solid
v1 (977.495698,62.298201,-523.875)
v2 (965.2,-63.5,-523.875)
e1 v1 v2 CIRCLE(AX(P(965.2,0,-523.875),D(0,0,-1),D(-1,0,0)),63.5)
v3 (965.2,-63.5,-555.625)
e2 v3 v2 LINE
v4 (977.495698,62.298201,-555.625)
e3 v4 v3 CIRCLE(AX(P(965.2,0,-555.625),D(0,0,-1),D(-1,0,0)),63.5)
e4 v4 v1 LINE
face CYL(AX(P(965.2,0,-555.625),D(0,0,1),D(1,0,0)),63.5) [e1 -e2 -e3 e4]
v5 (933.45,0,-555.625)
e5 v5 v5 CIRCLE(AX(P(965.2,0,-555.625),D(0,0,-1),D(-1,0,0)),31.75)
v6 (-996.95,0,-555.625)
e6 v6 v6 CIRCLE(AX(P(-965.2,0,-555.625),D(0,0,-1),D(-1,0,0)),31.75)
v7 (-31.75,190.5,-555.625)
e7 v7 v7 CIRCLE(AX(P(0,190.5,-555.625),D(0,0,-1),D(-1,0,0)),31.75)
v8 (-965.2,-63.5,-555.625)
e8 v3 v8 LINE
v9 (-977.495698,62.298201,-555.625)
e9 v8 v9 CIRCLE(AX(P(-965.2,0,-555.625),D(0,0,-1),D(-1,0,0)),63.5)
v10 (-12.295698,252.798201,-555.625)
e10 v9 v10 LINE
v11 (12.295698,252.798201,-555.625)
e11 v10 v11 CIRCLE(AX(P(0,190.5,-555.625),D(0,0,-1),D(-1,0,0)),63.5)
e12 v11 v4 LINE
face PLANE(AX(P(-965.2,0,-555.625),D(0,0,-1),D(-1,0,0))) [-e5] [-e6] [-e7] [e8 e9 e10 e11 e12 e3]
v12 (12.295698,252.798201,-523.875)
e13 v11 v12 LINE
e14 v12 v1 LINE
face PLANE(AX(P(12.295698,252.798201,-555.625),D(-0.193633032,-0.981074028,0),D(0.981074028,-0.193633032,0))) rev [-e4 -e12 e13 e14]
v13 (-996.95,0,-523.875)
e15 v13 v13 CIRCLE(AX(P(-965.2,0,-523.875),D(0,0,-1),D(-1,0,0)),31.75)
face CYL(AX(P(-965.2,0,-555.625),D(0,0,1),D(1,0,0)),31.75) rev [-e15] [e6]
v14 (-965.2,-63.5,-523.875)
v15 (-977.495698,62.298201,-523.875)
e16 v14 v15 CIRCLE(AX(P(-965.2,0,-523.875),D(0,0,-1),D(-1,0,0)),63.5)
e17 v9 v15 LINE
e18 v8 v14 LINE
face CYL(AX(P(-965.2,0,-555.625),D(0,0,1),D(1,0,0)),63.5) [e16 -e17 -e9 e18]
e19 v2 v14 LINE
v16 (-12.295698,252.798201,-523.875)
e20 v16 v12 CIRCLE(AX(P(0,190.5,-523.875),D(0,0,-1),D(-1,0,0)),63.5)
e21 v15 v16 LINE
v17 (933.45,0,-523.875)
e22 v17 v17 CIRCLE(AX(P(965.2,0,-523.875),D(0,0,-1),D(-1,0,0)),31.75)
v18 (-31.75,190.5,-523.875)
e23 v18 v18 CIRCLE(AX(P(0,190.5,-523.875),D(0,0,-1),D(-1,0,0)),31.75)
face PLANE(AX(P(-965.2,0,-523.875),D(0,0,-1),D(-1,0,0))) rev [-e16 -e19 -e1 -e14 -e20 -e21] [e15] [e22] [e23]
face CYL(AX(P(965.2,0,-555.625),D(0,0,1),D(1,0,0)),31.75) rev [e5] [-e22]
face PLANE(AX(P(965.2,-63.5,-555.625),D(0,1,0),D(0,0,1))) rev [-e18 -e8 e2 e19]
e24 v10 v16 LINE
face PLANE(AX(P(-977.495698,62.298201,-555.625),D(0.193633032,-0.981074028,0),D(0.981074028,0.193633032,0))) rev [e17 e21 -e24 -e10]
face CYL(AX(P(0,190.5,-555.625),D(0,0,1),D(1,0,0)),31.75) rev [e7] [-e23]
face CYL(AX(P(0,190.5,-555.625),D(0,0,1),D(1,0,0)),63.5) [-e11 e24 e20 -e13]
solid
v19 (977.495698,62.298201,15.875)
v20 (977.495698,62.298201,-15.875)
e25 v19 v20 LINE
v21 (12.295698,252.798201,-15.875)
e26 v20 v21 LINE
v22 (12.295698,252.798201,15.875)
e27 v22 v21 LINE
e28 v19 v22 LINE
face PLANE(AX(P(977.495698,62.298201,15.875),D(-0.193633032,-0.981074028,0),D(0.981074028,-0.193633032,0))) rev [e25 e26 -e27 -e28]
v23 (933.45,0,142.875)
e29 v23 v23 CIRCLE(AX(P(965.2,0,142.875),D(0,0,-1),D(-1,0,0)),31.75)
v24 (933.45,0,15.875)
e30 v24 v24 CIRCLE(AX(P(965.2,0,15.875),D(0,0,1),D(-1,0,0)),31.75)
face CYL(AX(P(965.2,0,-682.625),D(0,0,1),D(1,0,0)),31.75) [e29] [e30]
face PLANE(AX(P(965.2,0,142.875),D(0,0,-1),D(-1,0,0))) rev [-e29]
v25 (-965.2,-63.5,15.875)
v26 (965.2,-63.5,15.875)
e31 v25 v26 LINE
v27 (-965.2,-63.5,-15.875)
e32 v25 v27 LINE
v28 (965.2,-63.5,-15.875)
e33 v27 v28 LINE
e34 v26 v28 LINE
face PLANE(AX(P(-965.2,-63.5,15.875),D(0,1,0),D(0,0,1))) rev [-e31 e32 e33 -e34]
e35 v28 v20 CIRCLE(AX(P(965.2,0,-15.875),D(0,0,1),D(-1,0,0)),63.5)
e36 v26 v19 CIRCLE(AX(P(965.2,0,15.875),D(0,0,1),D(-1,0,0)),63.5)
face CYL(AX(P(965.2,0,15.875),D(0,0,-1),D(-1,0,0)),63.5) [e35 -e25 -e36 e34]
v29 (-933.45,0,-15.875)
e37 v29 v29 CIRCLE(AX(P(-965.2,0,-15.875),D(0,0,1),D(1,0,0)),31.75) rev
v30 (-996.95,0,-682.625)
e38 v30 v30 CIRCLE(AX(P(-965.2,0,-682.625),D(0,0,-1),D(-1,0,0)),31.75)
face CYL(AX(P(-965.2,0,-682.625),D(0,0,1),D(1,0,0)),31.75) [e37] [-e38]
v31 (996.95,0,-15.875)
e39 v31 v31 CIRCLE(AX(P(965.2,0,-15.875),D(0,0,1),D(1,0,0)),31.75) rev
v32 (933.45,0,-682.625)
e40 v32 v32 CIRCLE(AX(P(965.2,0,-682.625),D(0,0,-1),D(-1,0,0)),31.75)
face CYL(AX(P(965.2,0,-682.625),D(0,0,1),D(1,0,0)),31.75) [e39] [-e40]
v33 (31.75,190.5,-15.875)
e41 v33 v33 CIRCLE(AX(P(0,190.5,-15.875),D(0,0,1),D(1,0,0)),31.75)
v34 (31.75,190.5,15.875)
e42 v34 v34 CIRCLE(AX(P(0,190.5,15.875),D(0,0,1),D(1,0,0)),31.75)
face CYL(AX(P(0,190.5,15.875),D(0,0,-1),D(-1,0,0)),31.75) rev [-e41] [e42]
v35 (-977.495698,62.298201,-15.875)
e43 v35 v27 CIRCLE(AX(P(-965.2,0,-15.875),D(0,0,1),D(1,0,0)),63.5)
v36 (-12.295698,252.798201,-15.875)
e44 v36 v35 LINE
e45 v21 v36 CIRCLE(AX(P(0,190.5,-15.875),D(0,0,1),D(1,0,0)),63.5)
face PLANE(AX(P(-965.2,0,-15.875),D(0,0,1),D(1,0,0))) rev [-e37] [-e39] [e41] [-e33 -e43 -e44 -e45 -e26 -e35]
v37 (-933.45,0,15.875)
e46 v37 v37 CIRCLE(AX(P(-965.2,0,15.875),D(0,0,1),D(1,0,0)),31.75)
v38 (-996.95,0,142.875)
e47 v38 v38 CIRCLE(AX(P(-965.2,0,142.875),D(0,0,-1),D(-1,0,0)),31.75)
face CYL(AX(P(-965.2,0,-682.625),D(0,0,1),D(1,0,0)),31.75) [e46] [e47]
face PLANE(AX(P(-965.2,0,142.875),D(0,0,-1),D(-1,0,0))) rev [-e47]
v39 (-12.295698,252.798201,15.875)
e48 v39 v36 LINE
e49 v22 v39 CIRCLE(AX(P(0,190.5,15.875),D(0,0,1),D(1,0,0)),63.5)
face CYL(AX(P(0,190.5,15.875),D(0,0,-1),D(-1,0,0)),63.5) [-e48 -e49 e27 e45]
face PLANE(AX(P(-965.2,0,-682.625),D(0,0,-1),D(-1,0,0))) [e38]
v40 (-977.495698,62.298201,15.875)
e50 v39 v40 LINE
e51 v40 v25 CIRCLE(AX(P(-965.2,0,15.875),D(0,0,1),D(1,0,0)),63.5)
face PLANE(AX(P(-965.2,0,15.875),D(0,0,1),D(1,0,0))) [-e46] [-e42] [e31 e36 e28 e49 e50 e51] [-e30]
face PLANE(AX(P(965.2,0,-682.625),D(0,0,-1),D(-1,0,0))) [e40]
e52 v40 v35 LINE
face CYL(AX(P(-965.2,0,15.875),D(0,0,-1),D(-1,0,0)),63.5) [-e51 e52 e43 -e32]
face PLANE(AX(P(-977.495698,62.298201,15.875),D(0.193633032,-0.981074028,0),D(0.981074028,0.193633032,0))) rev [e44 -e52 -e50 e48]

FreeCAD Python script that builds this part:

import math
import FreeCAD as App
import Part
import Sketcher
Q = App.Units.Quantity

doc = App.newDocument("Part")
params = doc.addObject("Spreadsheet::Sheet", "Params")
for row, (alias, value) in enumerate([
    ("sketch1_diameter", "2.5 in"),
    ("sketch1_radius", "2.5 in"),
    ("sketch1_width", "76 in"),
    ("pad1_length", "1.25 in"),
    ("sketch2_diameter", "2.5 in"),
    ("pad2_length", "26.25 in"),
    ("pad2_length2", "6.25 in"),
    ("sketch3_diameter", "2.5 in"),
    ("sketch3_radius", "2.5 in"),
    ("sketch3_width", "76 in"),
    ("pad3_length", "1.25 in"),
], start=1):
    params.set(f"A{row}", alias)
    params.set(f"B{row}", "=" + value)
    params.setAlias(f"B{row}", alias)

body = doc.addObject("PartDesign::Body", "Body")

# Sketch on XY plane
sketch1 = body.newObject("Sketcher::SketchObject", "Sketch")
sketch1.AttachmentSupport = (doc.getObject("XY_Plane"), [""])
sketch1.MapMode = "FlatFace"
sketch1.addGeometry([
    Part.LineSegment(App.Vector(977.495698, 62.298201, 0), App.Vector(12.295698, 252.798201, 0)),  # 0
    Part.ArcOfCircle(Part.Circle(App.Vector(0, 190.5, 0), App.Vector(0, 0, 1), 63.5), math.radians(78.83512), math.radians(101.16488)),  # 1
    Part.LineSegment(App.Vector(-12.295698, 252.798201, 0), App.Vector(-977.495698, 62.298201, 0)),  # 2
    Part.ArcOfCircle(Part.Circle(App.Vector(-965.2, 0, 0), App.Vector(0, 0, 1), 63.5), math.radians(101.16488), math.radians(270)),  # 3
    Part.LineSegment(App.Vector(-965.2, -63.5, 0), App.Vector(965.2, -63.5, 0)),  # 4
    Part.ArcOfCircle(Part.Circle(App.Vector(965.2, 0, 0), App.Vector(0, 0, 1), 63.5), math.radians(-90), math.radians(78.83512)),  # 5
    Part.Circle(App.Vector(-965.2, 0, 0), App.Vector(0, 0, 1), 31.75),  # 6
    Part.Circle(App.Vector(965.2, 0, 0), App.Vector(0, 0, 1), 31.75),  # 7
    Part.Circle(App.Vector(0, 190.5, 0), App.Vector(0, 0, 1), 31.75),  # 8
], False)
sketch1.addConstraint([
    Sketcher.Constraint("Tangent", 0, 2, 1, 1),
    Sketcher.Constraint("Tangent", 1, 2, 2, 1),
    Sketcher.Constraint("Tangent", 2, 2, 3, 1),
    Sketcher.Constraint("Tangent", 3, 2, 4, 1),
    Sketcher.Constraint("Tangent", 4, 2, 5, 1),
    Sketcher.Constraint("Tangent", 5, 2, 0, 1),
    Sketcher.Constraint("Horizontal", 4),
    Sketcher.Constraint("Coincident", 6, 3, 3, 3),
    Sketcher.Constraint("Coincident", 7, 3, 5, 3),
    Sketcher.Constraint("Coincident", 8, 3, 1, 3),
    Sketcher.Constraint("Equal", 1, 3),
    Sketcher.Constraint("Equal", 3, 5),
    Sketcher.Constraint("Equal", 6, 7),
    Sketcher.Constraint("Equal", 7, 8),
    Sketcher.Constraint("Symmetric", 3, 3, 5, 3, -1, 1),
    Sketcher.Constraint("PointOnObject", 1, 3, -2),
    Sketcher.Constraint("Diameter", 6, Q("2.5 in")),
    Sketcher.Constraint("Radius", 1, Q("2.5 in")),
    Sketcher.Constraint("DistanceX", 4, 1, 4, 2, Q("76 in")),
    Sketcher.Constraint("DistanceY", 3, 2, 1, 3, Q("10 in")),
])
sketch1.setExpression("Constraints[16]", "Params.sketch1_diameter")
sketch1.setExpression("Constraints[17]", "Params.sketch1_radius")
sketch1.setExpression("Constraints[18]", "Params.sketch1_width")
pad1 = body.newObject("PartDesign::Pad", "Pad")
pad1.Profile = sketch1
pad1.setExpression("Length", "Params.pad1_length")
pad1.Midplane = True

# Sketch on XY plane
sketch2 = body.newObject("Sketcher::SketchObject", "Sketch001")
sketch2.AttachmentSupport = (doc.getObject("XY_Plane"), [""])
sketch2.MapMode = "FlatFace"
sketch2.AttachmentOffset = App.Placement(App.Vector(0, 0, -0.625 * 25.4), App.Rotation())
sketch2.addGeometry([
    Part.Circle(App.Vector(965.2, 0, 0), App.Vector(0, 0, 1), 31.75),
    Part.Circle(App.Vector(-965.2, 0, 0), App.Vector(0, 0, 1), 31.75),
], False)
sketch2.addConstraint([
    Sketcher.Constraint("Equal", 0, 1),
    Sketcher.Constraint("Symmetric", 0, 3, 1, 3, -1, 1),
    Sketcher.Constraint("PointOnObject", 0, 3, -1),
    Sketcher.Constraint("Diameter", 0, Q("2.5 in")),
    Sketcher.Constraint("DistanceX", -1, 1, 0, 3, Q("38 in")),
])
sketch2.setExpression("Constraints[3]", "Params.sketch2_diameter")
pad2 = body.newObject("PartDesign::Pad", "Pad001")
pad2.Profile = sketch2
pad2.Type = "TwoLengths"
pad2.setExpression("Length", "Params.pad2_length")
pad2.setExpression("Length2", "Params.pad2_length2")
pad2.Reversed = True
body2 = doc.addObject("PartDesign::Body", "Body001")

# Sketch on XY plane
sketch3 = body2.newObject("Sketcher::SketchObject", "Sketch002")
sketch3.AttachmentSupport = (doc.getObject("XY_Plane001"), [""])
sketch3.MapMode = "FlatFace"
sketch3.AttachmentOffset = App.Placement(App.Vector(0, 0, -20.625 * 25.4), App.Rotation())
sketch3.addGeometry([
    Part.LineSegment(App.Vector(-977.495698, 62.298201, 0), App.Vector(-12.295698, 252.798201, 0)),  # 0
    Part.ArcOfCircle(Part.Circle(App.Vector(0, 190.5, 0), App.Vector(0, 0, 1), 63.5), math.radians(78.83512), math.radians(101.16488)),  # 1
    Part.LineSegment(App.Vector(12.295698, 252.798201, 0), App.Vector(977.495698, 62.298201, 0)),  # 2
    Part.ArcOfCircle(Part.Circle(App.Vector(965.2, 0, 0), App.Vector(0, 0, 1), 63.5), math.radians(-90), math.radians(78.83512)),  # 3
    Part.LineSegment(App.Vector(965.2, -63.5, 0), App.Vector(-965.2, -63.5, 0)),  # 4
    Part.ArcOfCircle(Part.Circle(App.Vector(-965.2, 0, 0), App.Vector(0, 0, 1), 63.5), math.radians(101.16488), math.radians(270)),  # 5
    Part.Circle(App.Vector(965.2, 0, 0), App.Vector(0, 0, 1), 31.75),  # 6
    Part.Circle(App.Vector(-965.2, 0, 0), App.Vector(0, 0, 1), 31.75),  # 7
    Part.Circle(App.Vector(0, 190.5, 0), App.Vector(0, 0, 1), 31.75),  # 8
], False)
sketch3.addConstraint([
    Sketcher.Constraint("Tangent", 0, 2, 1, 2),
    Sketcher.Constraint("Tangent", 1, 1, 2, 1),
    Sketcher.Constraint("Tangent", 2, 2, 3, 2),
    Sketcher.Constraint("Tangent", 3, 1, 4, 1),
    Sketcher.Constraint("Tangent", 4, 2, 5, 2),
    Sketcher.Constraint("Tangent", 5, 1, 0, 1),
    Sketcher.Constraint("Horizontal", 4),
    Sketcher.Constraint("Coincident", 6, 3, 3, 3),
    Sketcher.Constraint("Coincident", 7, 3, 5, 3),
    Sketcher.Constraint("Coincident", 8, 3, 1, 3),
    Sketcher.Constraint("Equal", 1, 3),
    Sketcher.Constraint("Equal", 3, 5),
    Sketcher.Constraint("Equal", 6, 7),
    Sketcher.Constraint("Equal", 7, 8),
    Sketcher.Constraint("Symmetric", 3, 3, 5, 3, -1, 1),
    Sketcher.Constraint("PointOnObject", 1, 3, -2),
    Sketcher.Constraint("Diameter", 6, Q("2.5 in")),
    Sketcher.Constraint("Radius", 1, Q("2.5 in")),
    Sketcher.Constraint("DistanceX", 4, 2, 4, 1, Q("76 in")),
    Sketcher.Constraint("DistanceY", 3, 1, 1, 3, Q("10 in")),
])
sketch3.setExpression("Constraints[16]", "Params.sketch3_diameter")
sketch3.setExpression("Constraints[17]", "Params.sketch3_radius")
sketch3.setExpression("Constraints[18]", "Params.sketch3_width")
pad3 = body2.newObject("PartDesign::Pad", "Pad002")
pad3.Profile = sketch3
pad3.setExpression("Length", "Params.pad3_length")
pad3.Reversed = True

doc.recompute()
